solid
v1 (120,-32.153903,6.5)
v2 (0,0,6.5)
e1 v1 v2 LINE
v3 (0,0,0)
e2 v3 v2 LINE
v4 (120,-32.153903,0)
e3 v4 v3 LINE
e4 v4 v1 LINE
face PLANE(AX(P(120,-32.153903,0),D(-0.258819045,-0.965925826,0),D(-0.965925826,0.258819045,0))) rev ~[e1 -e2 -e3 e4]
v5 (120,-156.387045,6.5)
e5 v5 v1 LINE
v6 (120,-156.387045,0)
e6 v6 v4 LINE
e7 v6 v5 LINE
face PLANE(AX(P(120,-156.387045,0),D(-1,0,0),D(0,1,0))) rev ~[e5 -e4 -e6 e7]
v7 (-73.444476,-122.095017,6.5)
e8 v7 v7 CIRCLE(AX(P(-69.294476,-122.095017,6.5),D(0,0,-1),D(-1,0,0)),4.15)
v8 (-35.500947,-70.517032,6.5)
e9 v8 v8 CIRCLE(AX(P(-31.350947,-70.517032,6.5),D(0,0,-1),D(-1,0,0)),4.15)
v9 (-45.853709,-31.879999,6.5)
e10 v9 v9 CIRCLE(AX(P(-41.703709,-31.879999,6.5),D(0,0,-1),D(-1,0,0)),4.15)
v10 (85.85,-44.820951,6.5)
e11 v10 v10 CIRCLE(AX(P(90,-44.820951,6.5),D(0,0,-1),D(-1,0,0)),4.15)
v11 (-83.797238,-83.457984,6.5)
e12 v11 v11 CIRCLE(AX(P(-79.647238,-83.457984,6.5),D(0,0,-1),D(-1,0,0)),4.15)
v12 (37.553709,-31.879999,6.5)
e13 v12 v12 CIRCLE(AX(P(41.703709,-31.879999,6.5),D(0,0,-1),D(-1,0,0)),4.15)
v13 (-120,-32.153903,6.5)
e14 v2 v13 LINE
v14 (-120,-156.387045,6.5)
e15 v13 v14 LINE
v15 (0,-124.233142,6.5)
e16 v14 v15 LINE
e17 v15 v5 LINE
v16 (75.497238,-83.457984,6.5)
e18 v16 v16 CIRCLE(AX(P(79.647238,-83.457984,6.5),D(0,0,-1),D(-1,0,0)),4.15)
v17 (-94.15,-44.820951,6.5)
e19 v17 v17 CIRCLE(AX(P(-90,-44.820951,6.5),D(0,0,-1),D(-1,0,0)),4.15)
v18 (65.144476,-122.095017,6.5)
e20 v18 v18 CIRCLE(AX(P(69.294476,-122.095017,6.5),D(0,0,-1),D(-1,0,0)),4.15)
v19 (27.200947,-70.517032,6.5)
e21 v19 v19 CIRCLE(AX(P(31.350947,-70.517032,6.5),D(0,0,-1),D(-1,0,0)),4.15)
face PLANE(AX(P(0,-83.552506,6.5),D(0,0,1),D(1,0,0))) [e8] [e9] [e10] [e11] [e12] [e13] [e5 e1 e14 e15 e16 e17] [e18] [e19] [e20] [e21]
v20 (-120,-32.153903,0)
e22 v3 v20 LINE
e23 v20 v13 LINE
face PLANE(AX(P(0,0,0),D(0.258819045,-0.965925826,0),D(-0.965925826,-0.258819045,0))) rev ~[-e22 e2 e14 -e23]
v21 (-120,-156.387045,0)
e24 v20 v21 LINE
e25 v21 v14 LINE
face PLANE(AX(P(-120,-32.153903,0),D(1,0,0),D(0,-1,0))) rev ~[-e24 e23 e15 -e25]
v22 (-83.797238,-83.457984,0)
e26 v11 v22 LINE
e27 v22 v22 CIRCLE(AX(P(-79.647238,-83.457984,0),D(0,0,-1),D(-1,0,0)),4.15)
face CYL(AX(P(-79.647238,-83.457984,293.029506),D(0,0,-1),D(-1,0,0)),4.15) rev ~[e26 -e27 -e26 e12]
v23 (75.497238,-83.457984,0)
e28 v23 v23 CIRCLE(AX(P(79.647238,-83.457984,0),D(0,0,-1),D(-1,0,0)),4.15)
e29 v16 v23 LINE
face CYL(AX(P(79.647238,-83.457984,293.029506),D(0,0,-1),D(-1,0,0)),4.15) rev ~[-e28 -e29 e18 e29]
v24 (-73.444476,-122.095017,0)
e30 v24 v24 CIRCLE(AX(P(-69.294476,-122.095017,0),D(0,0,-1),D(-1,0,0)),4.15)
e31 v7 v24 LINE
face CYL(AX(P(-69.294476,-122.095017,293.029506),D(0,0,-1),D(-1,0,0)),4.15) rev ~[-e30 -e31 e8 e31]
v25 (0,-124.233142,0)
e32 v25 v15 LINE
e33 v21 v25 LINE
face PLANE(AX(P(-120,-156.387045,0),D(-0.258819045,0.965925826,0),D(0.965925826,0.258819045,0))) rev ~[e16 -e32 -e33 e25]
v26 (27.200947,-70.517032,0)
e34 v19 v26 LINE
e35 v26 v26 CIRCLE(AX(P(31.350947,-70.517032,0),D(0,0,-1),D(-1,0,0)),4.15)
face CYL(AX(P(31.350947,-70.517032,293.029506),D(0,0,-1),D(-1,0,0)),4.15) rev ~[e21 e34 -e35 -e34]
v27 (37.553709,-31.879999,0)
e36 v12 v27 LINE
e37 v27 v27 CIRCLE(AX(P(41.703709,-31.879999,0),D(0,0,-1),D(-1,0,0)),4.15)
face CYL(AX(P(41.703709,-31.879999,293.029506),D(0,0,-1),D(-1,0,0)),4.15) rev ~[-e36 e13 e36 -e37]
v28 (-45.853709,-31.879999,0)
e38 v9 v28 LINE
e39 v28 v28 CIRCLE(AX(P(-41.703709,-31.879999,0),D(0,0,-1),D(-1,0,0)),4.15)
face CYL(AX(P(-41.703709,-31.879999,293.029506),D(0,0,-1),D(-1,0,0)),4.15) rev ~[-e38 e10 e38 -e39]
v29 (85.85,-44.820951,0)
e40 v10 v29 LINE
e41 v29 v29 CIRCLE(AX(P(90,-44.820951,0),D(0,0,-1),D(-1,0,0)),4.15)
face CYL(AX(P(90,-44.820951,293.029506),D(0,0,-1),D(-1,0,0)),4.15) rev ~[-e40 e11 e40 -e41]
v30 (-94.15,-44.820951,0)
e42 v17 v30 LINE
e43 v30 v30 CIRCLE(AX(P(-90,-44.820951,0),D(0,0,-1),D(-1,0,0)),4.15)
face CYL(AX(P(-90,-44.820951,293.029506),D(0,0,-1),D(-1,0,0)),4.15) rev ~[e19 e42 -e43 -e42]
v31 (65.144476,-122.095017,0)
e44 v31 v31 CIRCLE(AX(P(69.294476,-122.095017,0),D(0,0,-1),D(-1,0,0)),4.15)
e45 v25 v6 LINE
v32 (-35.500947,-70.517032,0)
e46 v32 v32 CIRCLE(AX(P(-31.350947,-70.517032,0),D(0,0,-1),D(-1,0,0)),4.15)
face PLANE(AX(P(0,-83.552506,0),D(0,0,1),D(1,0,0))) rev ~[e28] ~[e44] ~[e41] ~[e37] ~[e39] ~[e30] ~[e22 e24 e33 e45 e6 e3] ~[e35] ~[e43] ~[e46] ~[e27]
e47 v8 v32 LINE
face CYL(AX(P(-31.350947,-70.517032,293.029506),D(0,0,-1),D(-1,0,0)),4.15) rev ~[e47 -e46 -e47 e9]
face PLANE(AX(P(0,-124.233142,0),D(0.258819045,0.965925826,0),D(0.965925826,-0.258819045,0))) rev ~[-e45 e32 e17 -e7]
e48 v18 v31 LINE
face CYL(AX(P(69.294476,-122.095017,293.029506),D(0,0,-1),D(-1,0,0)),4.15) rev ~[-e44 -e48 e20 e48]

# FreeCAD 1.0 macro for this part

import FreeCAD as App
import Part
import Sketcher
Q = App.Units.Quantity


def add_polygon(sketch, points):
    """Adds a closed chain of lines whose ends are joined by coincident constraints."""
    first, n = sketch.GeometryCount, len(points)
    for a, b in zip(points, points[1:] + points[:1]):
        sketch.addGeometry(Part.LineSegment(App.Vector(*a, 0), App.Vector(*b, 0)), False)
    for i in range(n):
        sketch.addConstraint(Sketcher.Constraint("Coincident", first + i, 2, first + (i + 1) % n, 1))

doc = App.newDocument("Part")
body = doc.addObject("PartDesign::Body", "Body")

sketch1 = body.newObject("Sketcher::SketchObject", "Sketch")
sketch1.AttachmentSupport = (doc.getObject("XY_Plane"), [""])
sketch1.MapMode = "FlatFace"
add_polygon(sketch1, [(120, -32.153903), (0, 0), (-120, -32.153903), (-120, -156.387045), (0, -124.233142), (120, -156.387045)])
sketch1.addConstraint([
    Sketcher.Constraint("Vertical", 2),
    Sketcher.Constraint("Vertical", 5),
    Sketcher.Constraint("Coincident", 0, 2, -1, 1),
    Sketcher.Constraint("Symmetric", 2, 2, 4, 2, -2),
    Sketcher.Constraint("PointOnObject", 3, 2, -2),
    Sketcher.Constraint("Parallel", 1, 3),
    Sketcher.Constraint("Parallel", 0, 4),
    Sketcher.Constraint("Angle", 0, Q("165 deg")),
    Sketcher.Constraint("DistanceX", 1, 2, -1, 1, Q("120 mm")),
    Sketcher.Constraint("DistanceY", 2, 2, 2, 1, Q("124.233142 mm")),
])
pad1 = body.newObject("PartDesign::Pad", "Pad")
pad1.Profile = sketch1
pad1.Length = 6.5

sketch2 = body.newObject("Sketcher::SketchObject", "Sketch001")
sketch2.AttachmentSupport = (doc.getObject("XY_Plane"), [""])
sketch2.MapMode = "FlatFace"
sketch2.AttachmentOffset = App.Placement(App.Vector(0, 0, 6.5), App.Rotation())
sketch2.addGeometry([
    Part.Circle(App.Vector(-90, -44.820951, 0), App.Vector(0, 0, 1), 4.15),
    Part.Circle(App.Vector(-41.703709, -31.879999, 0), App.Vector(0, 0, 1), 4.15),
    Part.Circle(App.Vector(-79.647238, -83.457984, 0), App.Vector(0, 0, 1), 4.15),
    Part.Circle(App.Vector(-31.350947, -70.517032, 0), App.Vector(0, 0, 1), 4.15),
    Part.Circle(App.Vector(-69.294476, -122.095017, 0), App.Vector(0, 0, 1), 4.15),
    Part.Circle(App.Vector(41.703709, -31.879999, 0), App.Vector(0, 0, 1), 4.15),
    Part.Circle(App.Vector(90, -44.820951, 0), App.Vector(0, 0, 1), 4.15),
    Part.Circle(App.Vector(79.647238, -83.457984, 0), App.Vector(0, 0, 1), 4.15),
    Part.Circle(App.Vector(69.294476, -122.095017, 0), App.Vector(0, 0, 1), 4.15),
    Part.Circle(App.Vector(31.350947, -70.517032, 0), App.Vector(0, 0, 1), 4.15),
], False)
sketch2.addConstraint([
    Sketcher.Constraint("Equal", 0, 1),
    Sketcher.Constraint("Equal", 1, 2),
    Sketcher.Constraint("Equal", 2, 3),
    Sketcher.Constraint("Equal", 3, 4),
    Sketcher.Constraint("Equal", 4, 5),
    Sketcher.Constraint("Equal", 5, 6),
    Sketcher.Constraint("Equal", 6, 7),
    Sketcher.Constraint("Equal", 7, 8),
    Sketcher.Constraint("Equal", 8, 9),
    Sketcher.Constraint("Symmetric", 1, 3, 5, 3, -2),
    Sketcher.Constraint("Symmetric", 0, 3, 6, 3, -2),
    Sketcher.Constraint("Symmetric", 2, 3, 7, 3, -2),
    Sketcher.Constraint("Symmetric", 4, 3, 8, 3, -2),
    Sketcher.Constraint("Symmetric", 3, 3, 9, 3, -2),
    Sketcher.Constraint("Diameter", 0, Q("8.3 mm")),
    Sketcher.Constraint("DistanceX", 0, 3, -1, 1, Q("90 mm")),
    Sketcher.Constraint("DistanceY", 1, 3, -1, 1, Q("31.879999 mm")),
    Sketcher.Constraint("DistanceY", 0, 3, -1, 1, Q("44.820951 mm")),
    Sketcher.Constraint("DistanceX", 1, 3, -1, 1, Q("41.703709 mm")),
    Sketcher.Constraint("DistanceX", 2, 3, -1, 1, Q("79.647238 mm")),
    Sketcher.Constraint("DistanceY", 3, 3, -1, 1, Q("70.517032 mm")),
    Sketcher.Constraint("DistanceX", 1, 3, 3, 3, Q("10.352762 mm")),
    Sketcher.Constraint("DistanceX", 2, 3, 4, 3, Q("10.352762 mm")),
    Sketcher.Constraint("DistanceY", 4, 3, 1, 3, Q("90.215018 mm")),
    Sketcher.Constraint("DistanceY", 2, 3, -1, 1, Q("83.457984 mm")),
])
doc.recompute()
hole = body.newObject("PartDesign::Hole", "Hole")
hole.Profile = sketch2
hole.ThreadType = "None"
hole.Diameter = 8.3
hole.DepthType = "ThroughAll"

doc.recompute()
